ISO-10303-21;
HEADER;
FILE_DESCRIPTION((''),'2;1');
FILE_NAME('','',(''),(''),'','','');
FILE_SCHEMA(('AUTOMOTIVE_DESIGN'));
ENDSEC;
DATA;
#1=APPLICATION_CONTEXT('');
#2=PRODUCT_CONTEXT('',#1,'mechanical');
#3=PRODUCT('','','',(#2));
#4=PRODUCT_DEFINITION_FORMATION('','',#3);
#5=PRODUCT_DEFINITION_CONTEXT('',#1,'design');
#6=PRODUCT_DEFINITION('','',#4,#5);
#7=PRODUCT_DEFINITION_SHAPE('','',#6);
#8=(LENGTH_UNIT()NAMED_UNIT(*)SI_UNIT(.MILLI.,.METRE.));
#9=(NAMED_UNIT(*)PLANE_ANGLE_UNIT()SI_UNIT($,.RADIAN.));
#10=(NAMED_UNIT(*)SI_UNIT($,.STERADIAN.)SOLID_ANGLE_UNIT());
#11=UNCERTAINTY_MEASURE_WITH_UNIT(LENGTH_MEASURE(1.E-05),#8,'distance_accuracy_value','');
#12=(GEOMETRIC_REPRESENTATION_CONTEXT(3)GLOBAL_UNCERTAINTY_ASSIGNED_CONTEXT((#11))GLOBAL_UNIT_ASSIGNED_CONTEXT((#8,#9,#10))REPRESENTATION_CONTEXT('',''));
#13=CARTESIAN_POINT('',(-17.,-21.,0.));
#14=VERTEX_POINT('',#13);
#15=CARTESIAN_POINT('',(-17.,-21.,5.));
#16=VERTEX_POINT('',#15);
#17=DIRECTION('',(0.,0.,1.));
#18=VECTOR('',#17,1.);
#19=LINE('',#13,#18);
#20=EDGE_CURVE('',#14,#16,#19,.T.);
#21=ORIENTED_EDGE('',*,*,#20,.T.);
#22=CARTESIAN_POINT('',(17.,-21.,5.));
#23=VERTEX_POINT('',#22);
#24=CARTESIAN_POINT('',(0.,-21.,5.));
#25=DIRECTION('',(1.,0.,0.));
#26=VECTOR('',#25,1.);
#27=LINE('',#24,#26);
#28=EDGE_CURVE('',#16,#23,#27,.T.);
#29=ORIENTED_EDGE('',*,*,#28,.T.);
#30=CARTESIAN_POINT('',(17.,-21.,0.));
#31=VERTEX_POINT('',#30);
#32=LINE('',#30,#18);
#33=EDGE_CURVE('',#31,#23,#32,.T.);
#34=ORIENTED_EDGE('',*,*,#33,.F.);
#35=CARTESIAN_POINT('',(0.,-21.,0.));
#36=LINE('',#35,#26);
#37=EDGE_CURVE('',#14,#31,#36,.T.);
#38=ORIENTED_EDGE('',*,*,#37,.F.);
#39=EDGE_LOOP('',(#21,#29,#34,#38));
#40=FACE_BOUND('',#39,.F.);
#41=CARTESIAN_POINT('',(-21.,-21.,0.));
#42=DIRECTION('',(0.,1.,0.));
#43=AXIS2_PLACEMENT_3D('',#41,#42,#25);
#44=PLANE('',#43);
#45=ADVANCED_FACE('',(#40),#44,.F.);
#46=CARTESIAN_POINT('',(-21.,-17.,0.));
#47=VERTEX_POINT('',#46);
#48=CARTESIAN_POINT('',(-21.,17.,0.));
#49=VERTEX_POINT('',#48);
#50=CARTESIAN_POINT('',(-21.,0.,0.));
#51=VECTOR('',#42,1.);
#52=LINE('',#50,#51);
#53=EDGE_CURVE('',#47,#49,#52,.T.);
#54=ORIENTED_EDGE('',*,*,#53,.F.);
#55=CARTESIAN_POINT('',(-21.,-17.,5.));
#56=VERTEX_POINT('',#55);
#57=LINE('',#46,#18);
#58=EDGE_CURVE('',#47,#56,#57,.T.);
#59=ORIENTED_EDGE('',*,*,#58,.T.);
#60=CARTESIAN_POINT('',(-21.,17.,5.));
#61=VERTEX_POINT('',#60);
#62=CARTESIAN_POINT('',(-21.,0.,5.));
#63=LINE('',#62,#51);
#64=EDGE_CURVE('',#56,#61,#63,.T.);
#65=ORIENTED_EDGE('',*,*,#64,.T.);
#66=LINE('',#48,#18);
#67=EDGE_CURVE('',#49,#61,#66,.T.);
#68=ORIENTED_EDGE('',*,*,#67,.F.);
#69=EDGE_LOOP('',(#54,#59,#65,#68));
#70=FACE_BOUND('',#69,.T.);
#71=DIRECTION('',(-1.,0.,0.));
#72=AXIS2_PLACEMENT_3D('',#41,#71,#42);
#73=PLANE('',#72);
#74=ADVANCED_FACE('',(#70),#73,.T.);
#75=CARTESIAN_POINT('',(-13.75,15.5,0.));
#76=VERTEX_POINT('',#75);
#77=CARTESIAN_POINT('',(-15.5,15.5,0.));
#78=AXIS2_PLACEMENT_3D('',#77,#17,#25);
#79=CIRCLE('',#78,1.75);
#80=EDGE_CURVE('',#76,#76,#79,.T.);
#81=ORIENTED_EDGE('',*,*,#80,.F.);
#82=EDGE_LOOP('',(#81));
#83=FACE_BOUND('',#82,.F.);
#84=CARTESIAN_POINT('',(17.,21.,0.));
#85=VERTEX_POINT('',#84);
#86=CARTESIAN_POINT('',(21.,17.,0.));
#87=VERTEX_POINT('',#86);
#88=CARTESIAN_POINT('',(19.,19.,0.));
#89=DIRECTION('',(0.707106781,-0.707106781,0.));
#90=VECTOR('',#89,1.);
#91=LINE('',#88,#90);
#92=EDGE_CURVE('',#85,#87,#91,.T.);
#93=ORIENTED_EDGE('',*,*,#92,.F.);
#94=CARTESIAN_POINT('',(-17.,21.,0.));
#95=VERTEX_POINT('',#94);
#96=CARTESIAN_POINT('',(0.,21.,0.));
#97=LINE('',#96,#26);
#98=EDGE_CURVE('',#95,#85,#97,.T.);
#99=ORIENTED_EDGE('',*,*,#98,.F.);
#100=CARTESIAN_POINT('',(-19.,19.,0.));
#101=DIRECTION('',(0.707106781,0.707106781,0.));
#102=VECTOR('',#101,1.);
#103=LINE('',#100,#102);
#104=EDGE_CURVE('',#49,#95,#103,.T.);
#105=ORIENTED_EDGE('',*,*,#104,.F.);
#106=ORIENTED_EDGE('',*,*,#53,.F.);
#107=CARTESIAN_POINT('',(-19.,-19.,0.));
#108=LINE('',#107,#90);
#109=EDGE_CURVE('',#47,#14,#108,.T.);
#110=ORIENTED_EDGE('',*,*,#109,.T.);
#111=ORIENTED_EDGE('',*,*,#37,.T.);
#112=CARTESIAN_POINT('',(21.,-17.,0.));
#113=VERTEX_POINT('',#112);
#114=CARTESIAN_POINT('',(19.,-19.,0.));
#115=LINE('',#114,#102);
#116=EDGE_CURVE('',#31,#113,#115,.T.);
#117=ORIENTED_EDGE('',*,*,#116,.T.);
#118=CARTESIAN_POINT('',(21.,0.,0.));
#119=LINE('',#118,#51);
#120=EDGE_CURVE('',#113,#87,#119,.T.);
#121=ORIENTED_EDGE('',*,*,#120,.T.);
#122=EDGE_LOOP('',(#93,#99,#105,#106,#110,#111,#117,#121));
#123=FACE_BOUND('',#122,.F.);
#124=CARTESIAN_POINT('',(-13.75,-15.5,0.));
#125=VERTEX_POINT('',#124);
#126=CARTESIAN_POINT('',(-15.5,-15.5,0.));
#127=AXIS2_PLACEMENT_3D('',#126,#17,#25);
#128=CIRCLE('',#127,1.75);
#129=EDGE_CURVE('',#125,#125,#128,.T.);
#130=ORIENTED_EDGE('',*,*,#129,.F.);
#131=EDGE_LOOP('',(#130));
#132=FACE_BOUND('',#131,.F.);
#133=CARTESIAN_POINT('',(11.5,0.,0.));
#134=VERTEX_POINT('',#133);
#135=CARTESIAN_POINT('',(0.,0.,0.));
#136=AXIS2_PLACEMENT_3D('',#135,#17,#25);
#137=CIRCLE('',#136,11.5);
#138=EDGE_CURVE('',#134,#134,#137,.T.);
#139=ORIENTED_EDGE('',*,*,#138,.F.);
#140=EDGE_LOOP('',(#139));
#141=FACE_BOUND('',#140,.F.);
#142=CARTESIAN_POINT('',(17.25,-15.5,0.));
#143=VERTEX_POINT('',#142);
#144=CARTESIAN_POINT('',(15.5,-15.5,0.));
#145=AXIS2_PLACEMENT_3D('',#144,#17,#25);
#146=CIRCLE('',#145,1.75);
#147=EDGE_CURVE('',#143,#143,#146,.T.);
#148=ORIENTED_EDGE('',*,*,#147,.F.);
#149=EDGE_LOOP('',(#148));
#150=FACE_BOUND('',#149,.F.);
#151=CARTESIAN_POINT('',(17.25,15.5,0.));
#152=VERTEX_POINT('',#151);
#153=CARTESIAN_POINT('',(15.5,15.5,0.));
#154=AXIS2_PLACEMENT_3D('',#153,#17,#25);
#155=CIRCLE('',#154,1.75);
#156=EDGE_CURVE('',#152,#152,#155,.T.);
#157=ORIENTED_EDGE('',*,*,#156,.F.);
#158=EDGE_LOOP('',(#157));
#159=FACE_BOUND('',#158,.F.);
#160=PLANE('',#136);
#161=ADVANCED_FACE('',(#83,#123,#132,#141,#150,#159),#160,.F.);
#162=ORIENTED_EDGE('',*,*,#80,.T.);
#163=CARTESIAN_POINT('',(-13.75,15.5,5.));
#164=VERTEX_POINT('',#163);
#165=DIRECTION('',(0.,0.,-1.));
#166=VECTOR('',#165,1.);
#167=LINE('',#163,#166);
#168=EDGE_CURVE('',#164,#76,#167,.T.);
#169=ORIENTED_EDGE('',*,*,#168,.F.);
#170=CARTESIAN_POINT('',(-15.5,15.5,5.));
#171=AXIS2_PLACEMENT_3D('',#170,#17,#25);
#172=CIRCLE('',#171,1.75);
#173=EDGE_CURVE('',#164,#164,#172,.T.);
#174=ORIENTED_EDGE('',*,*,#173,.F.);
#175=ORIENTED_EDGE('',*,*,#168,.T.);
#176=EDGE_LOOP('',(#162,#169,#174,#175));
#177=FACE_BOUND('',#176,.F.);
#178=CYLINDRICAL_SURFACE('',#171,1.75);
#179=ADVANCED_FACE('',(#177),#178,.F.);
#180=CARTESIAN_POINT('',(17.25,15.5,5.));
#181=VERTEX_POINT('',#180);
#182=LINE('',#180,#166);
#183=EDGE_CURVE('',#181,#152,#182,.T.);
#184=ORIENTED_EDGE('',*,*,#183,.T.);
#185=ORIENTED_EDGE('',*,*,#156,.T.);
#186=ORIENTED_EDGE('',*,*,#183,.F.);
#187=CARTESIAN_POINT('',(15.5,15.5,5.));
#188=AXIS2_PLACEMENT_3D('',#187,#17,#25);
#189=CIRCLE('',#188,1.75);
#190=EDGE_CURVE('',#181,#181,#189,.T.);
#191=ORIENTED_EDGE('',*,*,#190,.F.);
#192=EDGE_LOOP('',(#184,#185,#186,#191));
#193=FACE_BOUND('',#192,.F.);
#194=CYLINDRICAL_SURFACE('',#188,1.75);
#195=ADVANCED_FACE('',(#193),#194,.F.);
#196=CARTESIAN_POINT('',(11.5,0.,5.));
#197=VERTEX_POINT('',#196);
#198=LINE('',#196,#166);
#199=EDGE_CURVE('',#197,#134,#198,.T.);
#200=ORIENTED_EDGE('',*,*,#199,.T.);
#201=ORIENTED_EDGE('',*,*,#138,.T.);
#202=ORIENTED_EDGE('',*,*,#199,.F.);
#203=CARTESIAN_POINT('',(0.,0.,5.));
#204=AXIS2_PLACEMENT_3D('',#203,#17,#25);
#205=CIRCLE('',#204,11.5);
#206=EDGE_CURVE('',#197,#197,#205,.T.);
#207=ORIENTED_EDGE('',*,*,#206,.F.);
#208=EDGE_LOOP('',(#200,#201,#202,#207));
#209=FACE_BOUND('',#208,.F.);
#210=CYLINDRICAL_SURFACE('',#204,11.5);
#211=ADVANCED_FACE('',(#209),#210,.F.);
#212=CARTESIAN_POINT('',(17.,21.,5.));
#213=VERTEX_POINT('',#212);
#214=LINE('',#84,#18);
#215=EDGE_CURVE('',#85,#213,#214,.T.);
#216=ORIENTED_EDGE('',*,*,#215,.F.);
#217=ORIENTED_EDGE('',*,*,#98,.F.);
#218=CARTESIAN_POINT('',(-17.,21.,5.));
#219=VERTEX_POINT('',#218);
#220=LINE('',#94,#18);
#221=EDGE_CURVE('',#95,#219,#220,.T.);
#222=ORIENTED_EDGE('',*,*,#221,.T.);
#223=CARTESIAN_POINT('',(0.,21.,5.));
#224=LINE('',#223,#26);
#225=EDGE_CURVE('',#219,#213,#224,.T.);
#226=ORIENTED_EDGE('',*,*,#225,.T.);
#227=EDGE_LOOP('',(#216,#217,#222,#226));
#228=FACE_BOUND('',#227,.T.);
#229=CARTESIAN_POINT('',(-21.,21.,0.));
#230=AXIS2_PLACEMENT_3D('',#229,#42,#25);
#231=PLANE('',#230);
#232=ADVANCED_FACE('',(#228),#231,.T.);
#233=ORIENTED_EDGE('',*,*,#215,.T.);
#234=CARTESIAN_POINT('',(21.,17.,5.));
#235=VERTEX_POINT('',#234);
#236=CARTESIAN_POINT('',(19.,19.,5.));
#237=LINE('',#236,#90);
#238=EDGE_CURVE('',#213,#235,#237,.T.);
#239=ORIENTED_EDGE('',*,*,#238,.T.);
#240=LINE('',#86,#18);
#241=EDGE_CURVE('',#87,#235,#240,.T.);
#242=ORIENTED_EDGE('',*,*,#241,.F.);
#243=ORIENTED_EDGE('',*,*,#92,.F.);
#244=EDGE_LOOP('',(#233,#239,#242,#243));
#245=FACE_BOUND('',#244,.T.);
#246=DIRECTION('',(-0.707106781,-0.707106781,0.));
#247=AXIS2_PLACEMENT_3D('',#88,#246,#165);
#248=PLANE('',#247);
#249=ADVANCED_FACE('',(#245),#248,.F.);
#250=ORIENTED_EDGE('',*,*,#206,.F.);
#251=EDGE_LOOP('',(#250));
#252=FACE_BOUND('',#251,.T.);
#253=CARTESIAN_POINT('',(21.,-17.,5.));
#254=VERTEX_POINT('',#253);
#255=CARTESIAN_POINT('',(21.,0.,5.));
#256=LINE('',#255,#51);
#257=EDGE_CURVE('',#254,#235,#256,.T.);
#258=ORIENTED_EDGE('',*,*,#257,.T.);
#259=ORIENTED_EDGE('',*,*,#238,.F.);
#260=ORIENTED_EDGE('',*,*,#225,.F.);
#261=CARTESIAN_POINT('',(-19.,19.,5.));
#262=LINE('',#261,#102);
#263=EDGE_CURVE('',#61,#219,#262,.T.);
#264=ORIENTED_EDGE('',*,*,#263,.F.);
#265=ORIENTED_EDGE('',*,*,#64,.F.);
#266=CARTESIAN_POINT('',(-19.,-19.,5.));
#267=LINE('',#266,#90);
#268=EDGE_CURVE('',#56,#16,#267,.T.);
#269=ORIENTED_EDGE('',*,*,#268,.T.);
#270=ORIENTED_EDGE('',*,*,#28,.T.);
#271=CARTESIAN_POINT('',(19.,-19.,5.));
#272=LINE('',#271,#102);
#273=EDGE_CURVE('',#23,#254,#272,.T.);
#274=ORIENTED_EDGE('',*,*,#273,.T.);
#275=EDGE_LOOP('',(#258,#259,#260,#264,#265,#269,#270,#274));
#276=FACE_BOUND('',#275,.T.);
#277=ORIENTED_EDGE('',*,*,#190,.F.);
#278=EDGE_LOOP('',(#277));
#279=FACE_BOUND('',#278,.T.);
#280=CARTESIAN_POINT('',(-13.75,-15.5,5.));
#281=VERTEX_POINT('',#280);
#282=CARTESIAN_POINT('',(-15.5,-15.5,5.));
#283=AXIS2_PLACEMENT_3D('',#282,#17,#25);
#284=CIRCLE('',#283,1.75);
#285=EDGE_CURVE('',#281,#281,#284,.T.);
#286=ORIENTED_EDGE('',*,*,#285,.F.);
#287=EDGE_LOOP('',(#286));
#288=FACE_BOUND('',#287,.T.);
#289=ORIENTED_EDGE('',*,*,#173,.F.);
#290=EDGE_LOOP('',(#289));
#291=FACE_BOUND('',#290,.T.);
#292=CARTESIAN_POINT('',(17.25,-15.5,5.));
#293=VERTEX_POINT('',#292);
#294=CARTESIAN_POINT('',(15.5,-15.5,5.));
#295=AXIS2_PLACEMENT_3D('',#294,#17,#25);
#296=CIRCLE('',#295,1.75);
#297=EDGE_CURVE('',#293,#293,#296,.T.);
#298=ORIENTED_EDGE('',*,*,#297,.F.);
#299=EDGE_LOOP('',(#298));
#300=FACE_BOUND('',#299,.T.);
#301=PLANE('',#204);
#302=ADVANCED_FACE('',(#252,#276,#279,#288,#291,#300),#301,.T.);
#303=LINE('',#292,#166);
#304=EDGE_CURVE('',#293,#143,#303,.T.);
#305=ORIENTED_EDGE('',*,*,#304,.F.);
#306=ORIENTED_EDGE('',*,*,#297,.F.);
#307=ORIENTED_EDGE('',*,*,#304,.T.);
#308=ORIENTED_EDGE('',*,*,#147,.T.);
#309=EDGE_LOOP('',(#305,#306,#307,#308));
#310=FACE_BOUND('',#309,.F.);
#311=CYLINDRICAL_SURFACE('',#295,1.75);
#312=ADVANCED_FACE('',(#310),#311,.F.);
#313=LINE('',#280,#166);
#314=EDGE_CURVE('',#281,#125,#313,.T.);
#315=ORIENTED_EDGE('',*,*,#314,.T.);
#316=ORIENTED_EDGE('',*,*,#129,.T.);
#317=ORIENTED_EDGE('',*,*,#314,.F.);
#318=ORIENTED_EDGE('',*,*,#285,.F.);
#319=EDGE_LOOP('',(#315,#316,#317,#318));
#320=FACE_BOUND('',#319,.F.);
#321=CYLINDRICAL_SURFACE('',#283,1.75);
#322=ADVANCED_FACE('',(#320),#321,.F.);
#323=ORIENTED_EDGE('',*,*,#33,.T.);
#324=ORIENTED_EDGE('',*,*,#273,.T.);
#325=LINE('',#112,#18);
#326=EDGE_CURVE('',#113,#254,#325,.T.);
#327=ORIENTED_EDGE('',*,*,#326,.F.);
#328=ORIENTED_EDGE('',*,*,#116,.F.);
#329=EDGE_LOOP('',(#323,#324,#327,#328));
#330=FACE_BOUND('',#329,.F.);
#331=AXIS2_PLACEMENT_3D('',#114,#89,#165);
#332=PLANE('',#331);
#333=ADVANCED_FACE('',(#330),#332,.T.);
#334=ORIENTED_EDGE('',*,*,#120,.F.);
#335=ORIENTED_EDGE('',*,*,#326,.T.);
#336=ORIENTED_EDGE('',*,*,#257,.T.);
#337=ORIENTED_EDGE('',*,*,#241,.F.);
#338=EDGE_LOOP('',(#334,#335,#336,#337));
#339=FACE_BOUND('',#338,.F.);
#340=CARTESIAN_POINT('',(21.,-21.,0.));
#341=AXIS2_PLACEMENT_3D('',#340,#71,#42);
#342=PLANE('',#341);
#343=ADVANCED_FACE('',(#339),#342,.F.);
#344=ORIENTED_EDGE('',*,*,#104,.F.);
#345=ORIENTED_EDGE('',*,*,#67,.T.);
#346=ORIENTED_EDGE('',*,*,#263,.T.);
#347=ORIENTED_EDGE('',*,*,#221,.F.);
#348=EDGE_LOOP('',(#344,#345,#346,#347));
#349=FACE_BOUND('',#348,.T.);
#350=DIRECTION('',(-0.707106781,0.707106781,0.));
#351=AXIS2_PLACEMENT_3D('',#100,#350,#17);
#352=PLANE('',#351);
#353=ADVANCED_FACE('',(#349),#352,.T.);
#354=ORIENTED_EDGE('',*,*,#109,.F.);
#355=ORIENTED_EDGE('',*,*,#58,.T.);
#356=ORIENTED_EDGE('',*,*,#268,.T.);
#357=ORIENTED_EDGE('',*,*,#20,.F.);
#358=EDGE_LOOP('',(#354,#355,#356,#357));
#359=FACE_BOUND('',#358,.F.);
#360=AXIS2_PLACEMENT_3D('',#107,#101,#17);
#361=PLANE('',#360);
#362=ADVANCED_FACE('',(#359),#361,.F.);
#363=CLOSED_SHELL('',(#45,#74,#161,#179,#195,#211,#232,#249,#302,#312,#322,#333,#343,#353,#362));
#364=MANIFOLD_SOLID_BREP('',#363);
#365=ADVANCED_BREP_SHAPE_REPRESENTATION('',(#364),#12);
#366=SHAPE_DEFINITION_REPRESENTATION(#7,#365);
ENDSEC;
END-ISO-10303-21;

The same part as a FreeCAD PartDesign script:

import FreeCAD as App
import Part
import Sketcher


def edges_at(feature, points):
    """Names of the edges that pass closest to the given points."""
    edges = feature.Shape.Edges
    near = lambda p: min(range(len(edges)), key=lambda i: edges[i].distToShape(Part.Vertex(*p))[0])
    return sorted({f"Edge{near(p) + 1}" for p in points})

doc = App.newDocument("Part")
params = doc.addObject("Spreadsheet::Sheet", "Params")
for row, (alias, value) in enumerate([
    ("sketch1_width", "42 mm"),
    ("pad1_length", "5 mm"),
    ("sketch2_diameter", "23 mm"),
    ("pocket1_length", "12 mm"),
    ("sketch3_diameter", "3.5 mm"),
    ("pocket2_length", "12 mm"),
    ("chamfer_size", "4 mm"),
], start=1):
    params.set(f"A{row}", alias)
    params.set(f"B{row}", "=" + value)
    params.setAlias(f"B{row}", alias)

body = doc.addObject("PartDesign::Body", "Body")

# Sketch on XY plane
sketch1 = body.newObject("Sketcher::SketchObject", "Sketch")
sketch1.AttachmentSupport = (doc.getObject("XY_Plane"), [""])
sketch1.MapMode = "FlatFace"
sketch1.addGeometry([
    Part.LineSegment(App.Vector(-21, 21, 0), App.Vector(-21, -21, 0)),
    Part.LineSegment(App.Vector(-21, -21, 0), App.Vector(21, -21, 0)),
    Part.LineSegment(App.Vector(21, -21, 0), App.Vector(21, 21, 0)),
    Part.LineSegment(App.Vector(21, 21, 0), App.Vector(-21, 21, 0)),
], False)
sketch1.addConstraint([
    Sketcher.Constraint("Coincident", 0, 2, 1, 1),
    Sketcher.Constraint("Coincident", 1, 2, 2, 1),
    Sketcher.Constraint("Coincident", 2, 2, 3, 1),
    Sketcher.Constraint("Coincident", 3, 2, 0, 1),
    Sketcher.Constraint("Vertical", 0),
    Sketcher.Constraint("Horizontal", 1),
    Sketcher.Constraint("Vertical", 2),
    Sketcher.Constraint("Horizontal", 3),
    Sketcher.Constraint("Symmetric", 0, 2, 2, 2, -1, 1),
    Sketcher.Constraint("Equal", 3, 0),
    Sketcher.Constraint("DistanceX", 1, 1, 1, 2, 42.0),
])
sketch1.setExpression("Constraints[10]", "Params.sketch1_width")
pad1 = body.newObject("PartDesign::Pad", "Pad")
pad1.Profile = sketch1
pad1.setExpression("Length", "Params.pad1_length")

# Sketch on XY plane
sketch2 = body.newObject("Sketcher::SketchObject", "Sketch001")
sketch2.AttachmentSupport = (doc.getObject("XY_Plane"), [""])
sketch2.MapMode = "FlatFace"
sketch2.AttachmentOffset = App.Placement(App.Vector(0, 0, 5), App.Rotation())
sketch2.addGeometry(Part.Circle(App.Vector(0, 0, 0), App.Vector(0, 0, 1), 12), False)
sketch2.addConstraint([
    Sketcher.Constraint("Coincident", 0, 3, -1, 1),
    Sketcher.Constraint("Diameter", 0, 23.0),
])
sketch2.setExpression("Constraints[1]", "Params.sketch2_diameter")
pocket1 = body.newObject("PartDesign::Pocket", "Pocket")
pocket1.Profile = sketch2
pocket1.setExpression("Length", "Params.pocket1_length")

# Sketch on XY plane
sketch3 = body.newObject("Sketcher::SketchObject", "Sketch002")
sketch3.AttachmentSupport = (doc.getObject("XY_Plane"), [""])
sketch3.MapMode = "FlatFace"
sketch3.AttachmentOffset = App.Placement(App.Vector(0, 0, 5), App.Rotation())
sketch3.addGeometry([
    Part.Circle(App.Vector(15.5, 15.5, 0), App.Vector(0, 0, 1), 1.8),
    Part.Circle(App.Vector(-15.5, 15.5, 0), App.Vector(0, 0, 1), 1.8),
    Part.Circle(App.Vector(-15.5, -15.5, 0), App.Vector(0, 0, 1), 1.8),
    Part.Circle(App.Vector(15.5, -15.5, 0), App.Vector(0, 0, 1), 1.8),
], False)
sketch3.addConstraint([
    Sketcher.Constraint("Equal", 0, 1),
    Sketcher.Constraint("Equal", 1, 2),
    Sketcher.Constraint("Equal", 2, 3),
    Sketcher.Constraint("Symmetric", 0, 3, 2, 3, -1, 1),
    Sketcher.Constraint("Symmetric", 1, 3, 3, 3, -1, 1),
    Sketcher.Constraint("Symmetric", 0, 3, 1, 3, -2),
    Sketcher.Constraint("Diameter", 0, 3.5),
    Sketcher.Constraint("DistanceX", 1, 3, 0, 3, 31.0),
    Sketcher.Constraint("DistanceY", 2, 3, 1, 3, 31.0),
])
sketch3.setExpression("Constraints[6]", "Params.sketch3_diameter")
pocket2 = body.newObject("PartDesign::Pocket", "Pocket001")
pocket2.Profile = sketch3
pocket2.setExpression("Length", "Params.pocket2_length")
doc.recompute()

chamfer = body.newObject("PartDesign::Chamfer", "Chamfer")
chamfer.Base = (pocket2, edges_at(pocket2, [
    (21, 21, 2.5),
    (-21, 21, 2.5),
    (-21, -21, 2.5),
    (21, -21, 2.5),
]))
chamfer.setExpression("Size", "Params.chamfer_size")

doc.recompute()
